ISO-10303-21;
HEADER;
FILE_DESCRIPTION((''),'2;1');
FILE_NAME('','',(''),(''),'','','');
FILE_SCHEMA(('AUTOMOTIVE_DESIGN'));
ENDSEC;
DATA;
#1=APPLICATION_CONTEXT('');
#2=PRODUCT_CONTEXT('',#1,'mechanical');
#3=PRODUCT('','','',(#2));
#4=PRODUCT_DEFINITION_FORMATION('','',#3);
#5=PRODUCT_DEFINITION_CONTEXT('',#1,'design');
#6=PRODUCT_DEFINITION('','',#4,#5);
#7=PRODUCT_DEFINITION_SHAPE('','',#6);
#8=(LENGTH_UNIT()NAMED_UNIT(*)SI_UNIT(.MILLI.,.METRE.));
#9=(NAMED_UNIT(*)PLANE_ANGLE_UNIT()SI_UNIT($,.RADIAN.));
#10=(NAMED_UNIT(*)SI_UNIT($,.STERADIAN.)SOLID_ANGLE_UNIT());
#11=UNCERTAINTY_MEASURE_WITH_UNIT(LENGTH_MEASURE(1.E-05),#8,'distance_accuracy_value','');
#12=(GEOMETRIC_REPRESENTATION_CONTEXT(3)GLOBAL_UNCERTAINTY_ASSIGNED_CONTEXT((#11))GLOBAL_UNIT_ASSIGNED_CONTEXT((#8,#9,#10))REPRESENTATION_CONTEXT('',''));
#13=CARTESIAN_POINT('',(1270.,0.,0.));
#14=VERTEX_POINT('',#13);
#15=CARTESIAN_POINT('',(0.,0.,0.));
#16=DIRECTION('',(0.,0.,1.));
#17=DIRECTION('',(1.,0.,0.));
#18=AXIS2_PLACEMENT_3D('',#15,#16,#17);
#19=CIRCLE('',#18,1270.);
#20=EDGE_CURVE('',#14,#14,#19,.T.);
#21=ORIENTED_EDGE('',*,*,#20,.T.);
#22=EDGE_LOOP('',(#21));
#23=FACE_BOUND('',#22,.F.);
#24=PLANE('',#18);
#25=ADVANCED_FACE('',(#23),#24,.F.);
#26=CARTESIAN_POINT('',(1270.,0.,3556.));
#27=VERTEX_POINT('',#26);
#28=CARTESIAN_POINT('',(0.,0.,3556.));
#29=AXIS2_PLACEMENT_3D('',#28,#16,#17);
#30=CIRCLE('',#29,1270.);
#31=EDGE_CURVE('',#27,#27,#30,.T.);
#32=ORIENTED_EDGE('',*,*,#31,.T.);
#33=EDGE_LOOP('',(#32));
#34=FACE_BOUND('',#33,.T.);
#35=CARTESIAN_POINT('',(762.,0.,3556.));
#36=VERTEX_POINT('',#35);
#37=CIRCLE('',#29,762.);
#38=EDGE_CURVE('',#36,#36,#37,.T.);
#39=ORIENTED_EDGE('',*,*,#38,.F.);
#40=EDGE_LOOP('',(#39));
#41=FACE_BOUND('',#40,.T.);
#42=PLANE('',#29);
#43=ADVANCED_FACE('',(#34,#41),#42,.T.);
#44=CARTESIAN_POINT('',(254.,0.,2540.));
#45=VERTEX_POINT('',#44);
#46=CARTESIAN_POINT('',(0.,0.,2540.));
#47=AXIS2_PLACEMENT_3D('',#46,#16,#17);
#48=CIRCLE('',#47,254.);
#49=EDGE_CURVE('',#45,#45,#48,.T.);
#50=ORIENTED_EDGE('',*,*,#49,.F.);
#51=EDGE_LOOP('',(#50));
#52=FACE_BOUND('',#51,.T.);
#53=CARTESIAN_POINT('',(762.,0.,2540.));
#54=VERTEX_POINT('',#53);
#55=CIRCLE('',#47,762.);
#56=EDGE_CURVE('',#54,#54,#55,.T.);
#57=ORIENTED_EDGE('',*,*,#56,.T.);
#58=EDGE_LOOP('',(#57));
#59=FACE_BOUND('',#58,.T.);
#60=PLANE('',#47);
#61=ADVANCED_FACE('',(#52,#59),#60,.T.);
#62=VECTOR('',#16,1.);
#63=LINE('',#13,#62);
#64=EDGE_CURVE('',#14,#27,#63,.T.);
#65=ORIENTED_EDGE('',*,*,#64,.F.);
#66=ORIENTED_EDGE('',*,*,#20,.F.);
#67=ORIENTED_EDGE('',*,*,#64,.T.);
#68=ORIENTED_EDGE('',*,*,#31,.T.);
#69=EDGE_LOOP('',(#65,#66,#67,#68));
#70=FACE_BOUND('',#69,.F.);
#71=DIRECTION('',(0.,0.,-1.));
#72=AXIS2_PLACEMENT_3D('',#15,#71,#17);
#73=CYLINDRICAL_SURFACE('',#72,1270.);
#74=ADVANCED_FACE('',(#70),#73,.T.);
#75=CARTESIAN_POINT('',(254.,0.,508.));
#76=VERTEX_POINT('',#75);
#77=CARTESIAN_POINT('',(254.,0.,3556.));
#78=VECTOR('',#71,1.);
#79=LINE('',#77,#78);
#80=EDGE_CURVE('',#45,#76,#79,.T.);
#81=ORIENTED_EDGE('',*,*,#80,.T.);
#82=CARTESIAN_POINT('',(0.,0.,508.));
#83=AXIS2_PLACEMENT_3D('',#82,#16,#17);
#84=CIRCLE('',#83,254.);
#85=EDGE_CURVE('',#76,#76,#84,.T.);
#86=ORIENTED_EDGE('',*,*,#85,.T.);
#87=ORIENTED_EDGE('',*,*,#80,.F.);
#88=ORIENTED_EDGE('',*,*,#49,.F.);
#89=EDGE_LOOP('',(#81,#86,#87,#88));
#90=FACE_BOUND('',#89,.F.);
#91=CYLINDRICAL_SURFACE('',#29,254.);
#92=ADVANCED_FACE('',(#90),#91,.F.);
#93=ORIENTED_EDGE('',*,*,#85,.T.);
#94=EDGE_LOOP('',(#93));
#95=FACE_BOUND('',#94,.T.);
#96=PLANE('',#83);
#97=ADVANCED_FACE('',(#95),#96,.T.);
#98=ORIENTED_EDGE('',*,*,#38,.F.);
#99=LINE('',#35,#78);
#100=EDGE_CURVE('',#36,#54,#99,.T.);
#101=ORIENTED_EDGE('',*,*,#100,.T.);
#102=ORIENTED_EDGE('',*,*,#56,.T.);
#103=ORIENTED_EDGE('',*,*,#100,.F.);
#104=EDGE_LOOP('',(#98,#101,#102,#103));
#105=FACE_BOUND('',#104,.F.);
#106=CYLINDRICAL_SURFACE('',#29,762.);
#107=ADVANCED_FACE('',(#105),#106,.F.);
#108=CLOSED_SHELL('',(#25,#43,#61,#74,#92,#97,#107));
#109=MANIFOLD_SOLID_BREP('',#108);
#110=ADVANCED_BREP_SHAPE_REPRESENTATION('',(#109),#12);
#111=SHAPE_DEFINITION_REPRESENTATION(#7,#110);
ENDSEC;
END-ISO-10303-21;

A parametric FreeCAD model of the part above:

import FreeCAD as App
import Part
import Sketcher
Q = App.Units.Quantity

doc = App.newDocument("Part")
params = doc.addObject("Spreadsheet::Sheet", "Params")
for row, (alias, value) in enumerate([
    ("sketch1_diameter", "100 in"),
    ("pad1_length", "140 in"),
    ("sketch2_diameter", "60 in"),
    ("pocket1_length", "40 in"),
    ("sketch3_diameter", "20 in"),
    ("pocket2_length", "120 in"),
], start=1):
    params.set(f"A{row}", alias)
    params.set(f"B{row}", "=" + value)
    params.setAlias(f"B{row}", alias)

body = doc.addObject("PartDesign::Body", "Body")

# Sketch on XY plane
sketch1 = body.newObject("Sketcher::SketchObject", "Sketch")
sketch1.AttachmentSupport = (doc.getObject("XY_Plane"), [""])
sketch1.MapMode = "FlatFace"
sketch1.addGeometry(Part.Circle(App.Vector(0, 0, 0), App.Vector(0, 0, 1), 1270), False)
sketch1.addConstraint([
    Sketcher.Constraint("Coincident", 0, 3, -1, 1),
    Sketcher.Constraint("Diameter", 0, Q("100 in")),
])
sketch1.setExpression("Constraints[1]", "Params.sketch1_diameter")
pad1 = body.newObject("PartDesign::Pad", "Pad")
pad1.Profile = sketch1
pad1.setExpression("Length", "Params.pad1_length")

# Sketch on XY plane
sketch2 = body.newObject("Sketcher::SketchObject", "Sketch001")
sketch2.AttachmentSupport = (doc.getObject("XY_Plane"), [""])
sketch2.MapMode = "FlatFace"
sketch2.AttachmentOffset = App.Placement(App.Vector(0, 0, 140 * 25.4), App.Rotation())
sketch2.addGeometry(Part.Circle(App.Vector(0, 0, 0), App.Vector(0, 0, 1), 762), False)
sketch2.addConstraint([
    Sketcher.Constraint("Coincident", 0, 3, -1, 1),
    Sketcher.Constraint("Diameter", 0, Q("60 in")),
])
sketch2.setExpression("Constraints[1]", "Params.sketch2_diameter")
pocket1 = body.newObject("PartDesign::Pocket", "Pocket")
pocket1.Profile = sketch2
pocket1.setExpression("Length", "Params.pocket1_length")

# Sketch on XY plane
sketch3 = body.newObject("Sketcher::SketchObject", "Sketch002")
sketch3.AttachmentSupport = (doc.getObject("XY_Plane"), [""])
sketch3.MapMode = "FlatFace"
sketch3.AttachmentOffset = App.Placement(App.Vector(0, 0, 140 * 25.4), App.Rotation())
sketch3.addGeometry(Part.Circle(App.Vector(0, 0, 0), App.Vector(0, 0, 1), 254), False)
sketch3.addConstraint([
    Sketcher.Constraint("Coincident", 0, 3, -1, 1),
    Sketcher.Constraint("Diameter", 0, Q("20 in")),
])
sketch3.setExpression("Constraints[1]", "Params.sketch3_diameter")
pocket2 = body.newObject("PartDesign::Pocket", "Pocket001")
pocket2.Profile = sketch3
pocket2.setExpression("Length", "Params.pocket2_length")

doc.recompute()
